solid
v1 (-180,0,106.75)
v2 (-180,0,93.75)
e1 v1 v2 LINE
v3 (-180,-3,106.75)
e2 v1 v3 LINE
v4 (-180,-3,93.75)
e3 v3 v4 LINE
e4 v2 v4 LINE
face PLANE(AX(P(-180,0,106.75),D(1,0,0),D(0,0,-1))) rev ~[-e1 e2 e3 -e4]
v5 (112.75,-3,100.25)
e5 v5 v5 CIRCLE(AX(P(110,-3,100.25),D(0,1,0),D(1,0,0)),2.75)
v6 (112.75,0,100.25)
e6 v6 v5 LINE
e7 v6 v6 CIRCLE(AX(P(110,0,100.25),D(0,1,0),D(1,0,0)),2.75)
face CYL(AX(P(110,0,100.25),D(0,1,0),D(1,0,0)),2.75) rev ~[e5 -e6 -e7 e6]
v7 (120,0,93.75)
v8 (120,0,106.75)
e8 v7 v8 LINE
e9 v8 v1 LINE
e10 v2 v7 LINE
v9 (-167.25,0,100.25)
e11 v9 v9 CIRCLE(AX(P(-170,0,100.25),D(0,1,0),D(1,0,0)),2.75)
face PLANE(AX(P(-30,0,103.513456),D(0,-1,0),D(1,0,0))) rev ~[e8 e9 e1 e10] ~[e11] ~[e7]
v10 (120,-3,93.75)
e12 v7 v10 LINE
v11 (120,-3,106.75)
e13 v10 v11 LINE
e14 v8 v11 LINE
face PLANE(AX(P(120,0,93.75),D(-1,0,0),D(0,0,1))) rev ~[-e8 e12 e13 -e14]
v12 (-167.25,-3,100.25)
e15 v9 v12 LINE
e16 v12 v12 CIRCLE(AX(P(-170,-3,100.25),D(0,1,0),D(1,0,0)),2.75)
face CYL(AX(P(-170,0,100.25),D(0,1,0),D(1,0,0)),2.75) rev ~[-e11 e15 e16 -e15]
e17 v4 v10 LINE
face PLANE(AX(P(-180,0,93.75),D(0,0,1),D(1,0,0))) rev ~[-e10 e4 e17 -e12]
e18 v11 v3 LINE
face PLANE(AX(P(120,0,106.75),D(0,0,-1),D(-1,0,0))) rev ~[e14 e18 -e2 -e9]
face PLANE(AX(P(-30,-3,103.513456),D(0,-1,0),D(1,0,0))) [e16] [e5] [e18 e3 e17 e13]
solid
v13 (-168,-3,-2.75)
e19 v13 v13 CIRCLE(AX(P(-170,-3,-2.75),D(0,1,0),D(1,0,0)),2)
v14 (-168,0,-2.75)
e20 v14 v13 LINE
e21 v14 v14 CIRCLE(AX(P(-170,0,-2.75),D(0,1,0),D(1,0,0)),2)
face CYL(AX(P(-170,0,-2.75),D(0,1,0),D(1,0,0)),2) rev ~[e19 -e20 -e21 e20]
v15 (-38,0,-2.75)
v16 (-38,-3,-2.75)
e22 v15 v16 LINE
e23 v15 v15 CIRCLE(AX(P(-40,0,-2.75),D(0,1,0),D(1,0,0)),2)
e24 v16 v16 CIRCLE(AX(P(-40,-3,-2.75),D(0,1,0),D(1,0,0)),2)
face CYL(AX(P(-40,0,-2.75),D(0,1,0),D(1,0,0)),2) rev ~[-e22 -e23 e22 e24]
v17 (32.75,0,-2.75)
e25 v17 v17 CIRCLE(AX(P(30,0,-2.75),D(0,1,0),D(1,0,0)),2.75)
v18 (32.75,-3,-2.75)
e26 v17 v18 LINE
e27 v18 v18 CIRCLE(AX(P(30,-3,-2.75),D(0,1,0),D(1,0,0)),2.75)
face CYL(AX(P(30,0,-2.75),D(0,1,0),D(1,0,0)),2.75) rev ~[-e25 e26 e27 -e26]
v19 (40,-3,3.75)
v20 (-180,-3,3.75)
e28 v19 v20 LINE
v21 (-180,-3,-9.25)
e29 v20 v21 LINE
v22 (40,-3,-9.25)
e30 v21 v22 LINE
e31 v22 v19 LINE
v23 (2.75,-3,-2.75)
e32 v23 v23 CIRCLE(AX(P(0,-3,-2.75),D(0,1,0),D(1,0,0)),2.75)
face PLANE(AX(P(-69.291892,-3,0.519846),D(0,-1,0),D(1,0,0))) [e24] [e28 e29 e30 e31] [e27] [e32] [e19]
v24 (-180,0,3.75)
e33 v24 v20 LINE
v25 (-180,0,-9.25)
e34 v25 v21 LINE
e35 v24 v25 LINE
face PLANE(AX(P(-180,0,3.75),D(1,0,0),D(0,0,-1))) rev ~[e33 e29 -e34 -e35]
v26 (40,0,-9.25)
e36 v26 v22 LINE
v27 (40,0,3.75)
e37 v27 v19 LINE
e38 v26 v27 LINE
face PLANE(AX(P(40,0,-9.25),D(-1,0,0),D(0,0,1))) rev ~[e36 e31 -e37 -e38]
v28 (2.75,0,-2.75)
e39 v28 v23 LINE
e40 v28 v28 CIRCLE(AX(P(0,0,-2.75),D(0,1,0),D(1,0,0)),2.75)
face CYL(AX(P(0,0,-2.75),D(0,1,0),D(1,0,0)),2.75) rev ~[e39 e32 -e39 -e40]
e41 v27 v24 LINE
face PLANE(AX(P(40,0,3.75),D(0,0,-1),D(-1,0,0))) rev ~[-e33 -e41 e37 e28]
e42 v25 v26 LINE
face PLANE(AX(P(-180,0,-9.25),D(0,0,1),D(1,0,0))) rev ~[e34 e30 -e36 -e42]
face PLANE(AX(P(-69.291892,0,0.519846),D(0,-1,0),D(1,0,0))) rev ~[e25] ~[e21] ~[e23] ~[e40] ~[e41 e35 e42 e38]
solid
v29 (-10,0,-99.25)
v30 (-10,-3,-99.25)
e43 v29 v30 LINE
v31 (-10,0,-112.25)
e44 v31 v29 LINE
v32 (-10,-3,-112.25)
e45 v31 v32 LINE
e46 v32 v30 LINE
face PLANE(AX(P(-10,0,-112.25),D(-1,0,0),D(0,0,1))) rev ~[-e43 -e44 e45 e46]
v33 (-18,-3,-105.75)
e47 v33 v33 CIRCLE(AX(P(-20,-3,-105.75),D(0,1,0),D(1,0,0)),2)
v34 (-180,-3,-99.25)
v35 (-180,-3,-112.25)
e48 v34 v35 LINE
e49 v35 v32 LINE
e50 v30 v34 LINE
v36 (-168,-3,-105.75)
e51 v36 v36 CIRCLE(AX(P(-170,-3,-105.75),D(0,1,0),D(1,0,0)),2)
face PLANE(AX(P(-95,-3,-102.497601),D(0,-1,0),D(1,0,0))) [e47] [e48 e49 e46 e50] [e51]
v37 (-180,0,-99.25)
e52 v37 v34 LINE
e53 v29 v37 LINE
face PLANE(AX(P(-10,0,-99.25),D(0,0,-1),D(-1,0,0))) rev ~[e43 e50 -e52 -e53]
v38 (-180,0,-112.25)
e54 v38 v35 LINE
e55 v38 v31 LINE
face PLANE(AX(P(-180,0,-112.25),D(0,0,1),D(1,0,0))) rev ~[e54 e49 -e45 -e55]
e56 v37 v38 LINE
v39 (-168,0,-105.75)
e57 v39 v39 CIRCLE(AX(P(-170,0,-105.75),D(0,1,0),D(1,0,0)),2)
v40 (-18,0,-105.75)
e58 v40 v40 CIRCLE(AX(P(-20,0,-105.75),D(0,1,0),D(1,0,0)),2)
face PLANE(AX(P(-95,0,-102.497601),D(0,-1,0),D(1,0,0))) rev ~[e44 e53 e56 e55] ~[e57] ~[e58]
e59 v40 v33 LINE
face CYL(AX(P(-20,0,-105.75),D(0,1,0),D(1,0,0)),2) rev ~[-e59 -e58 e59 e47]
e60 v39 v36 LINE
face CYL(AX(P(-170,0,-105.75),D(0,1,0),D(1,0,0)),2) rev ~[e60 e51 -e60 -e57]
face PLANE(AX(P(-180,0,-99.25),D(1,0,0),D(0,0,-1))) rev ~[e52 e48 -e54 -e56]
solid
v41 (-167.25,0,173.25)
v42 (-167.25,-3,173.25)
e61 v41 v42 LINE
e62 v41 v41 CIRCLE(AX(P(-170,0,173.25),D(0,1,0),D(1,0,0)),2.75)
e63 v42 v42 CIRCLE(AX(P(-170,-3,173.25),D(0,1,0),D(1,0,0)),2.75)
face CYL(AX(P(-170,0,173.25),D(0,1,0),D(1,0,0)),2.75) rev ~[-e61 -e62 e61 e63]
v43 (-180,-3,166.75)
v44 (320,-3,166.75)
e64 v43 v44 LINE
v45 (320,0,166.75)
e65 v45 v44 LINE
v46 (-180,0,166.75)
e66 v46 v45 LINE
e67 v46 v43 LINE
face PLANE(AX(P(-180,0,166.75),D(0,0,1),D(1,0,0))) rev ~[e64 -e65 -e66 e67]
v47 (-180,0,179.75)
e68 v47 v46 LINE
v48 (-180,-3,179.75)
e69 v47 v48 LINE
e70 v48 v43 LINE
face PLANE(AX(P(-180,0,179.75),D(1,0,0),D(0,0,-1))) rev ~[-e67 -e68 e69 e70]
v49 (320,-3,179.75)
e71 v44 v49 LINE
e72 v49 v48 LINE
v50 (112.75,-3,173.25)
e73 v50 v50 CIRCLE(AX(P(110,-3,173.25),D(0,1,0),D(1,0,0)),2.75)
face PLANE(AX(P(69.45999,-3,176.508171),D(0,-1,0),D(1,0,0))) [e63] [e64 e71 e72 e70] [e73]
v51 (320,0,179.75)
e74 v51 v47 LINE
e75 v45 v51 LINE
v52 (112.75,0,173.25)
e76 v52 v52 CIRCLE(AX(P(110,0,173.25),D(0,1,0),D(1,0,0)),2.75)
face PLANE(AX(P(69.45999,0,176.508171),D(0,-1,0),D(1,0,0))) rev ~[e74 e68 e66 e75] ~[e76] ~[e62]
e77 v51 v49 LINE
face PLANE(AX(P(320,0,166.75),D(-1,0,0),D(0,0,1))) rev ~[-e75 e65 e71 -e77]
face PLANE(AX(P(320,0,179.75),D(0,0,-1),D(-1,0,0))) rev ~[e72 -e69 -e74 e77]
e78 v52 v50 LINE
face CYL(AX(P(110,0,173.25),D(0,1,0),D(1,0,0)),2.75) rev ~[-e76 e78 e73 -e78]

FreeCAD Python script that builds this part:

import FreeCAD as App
import Part
import Sketcher

V = App.Vector

doc = App.newDocument("Part")
body = doc.addObject("PartDesign::Body", "Body")
body.AllowCompound = True

sketch1 = body.newObject("Sketcher::SketchObject", "Sketch")
sketch1.AttachmentSupport = (doc.getObject("XZ_Plane"), [""])
sketch1.MapMode = "FlatFace"
sketch1.addGeometry(Part.LineSegment(V(320, 179.8, 0), V(-180, 179.8, 0)), False)
sketch1.addGeometry(Part.LineSegment(V(-180, 179.8, 0), V(-180, 166.8, 0)), False)
sketch1.addGeometry(Part.LineSegment(V(-180, 166.8, 0), V(320, 166.8, 0)), False)
sketch1.addGeometry(Part.LineSegment(V(320, 166.8, 0), V(320, 179.8, 0)), False)
sketch1.addGeometry(Part.Circle(V(-170, 173.2, 0), V(0, 0, 1), 2.8), False)
sketch1.addGeometry(Part.Circle(V(110, 173.2, 0), V(0, 0, 1), 2.8), False)
sketch1.addGeometry(Part.LineSegment(V(120, 106.8, 0), V(-180, 106.8, 0)), False)
sketch1.addGeometry(Part.LineSegment(V(-180, 106.8, 0), V(-180, 93.8, 0)), False)
sketch1.addGeometry(Part.LineSegment(V(-180, 93.8, 0), V(120, 93.8, 0)), False)
sketch1.addGeometry(Part.LineSegment(V(120, 93.8, 0), V(120, 106.8, 0)), False)
sketch1.addGeometry(Part.Circle(V(-170, 100.2, 0), V(0, 0, 1), 2.8), False)
sketch1.addGeometry(Part.Circle(V(110, 100.2, 0), V(0, 0, 1), 2.8), False)
sketch1.addGeometry(Part.LineSegment(V(40, 3.8, 0), V(-180, 3.8, 0)), False)
sketch1.addGeometry(Part.LineSegment(V(-180, 3.8, 0), V(-180, -9.2, 0)), False)
sketch1.addGeometry(Part.LineSegment(V(-180, -9.2, 0), V(40, -9.2, 0)), False)
sketch1.addGeometry(Part.LineSegment(V(40, -9.2, 0), V(40, 3.8, 0)), False)
sketch1.addGeometry(Part.Circle(V(-170, -2.8, 0), V(0, 0, 1), 2), False)
sketch1.addGeometry(Part.Circle(V(-40, -2.8, 0), V(0, 0, 1), 2), False)
sketch1.addGeometry(Part.Circle(V(0, -2.8, 0), V(0, 0, 1), 2.8), False)
sketch1.addGeometry(Part.Circle(V(30, -2.8, 0), V(0, 0, 1), 2.8), False)
sketch1.addGeometry(Part.LineSegment(V(-10, -99.2, 0), V(-180, -99.2, 0)), False)
sketch1.addGeometry(Part.LineSegment(V(-180, -99.2, 0), V(-180, -112.2, 0)), False)
sketch1.addGeometry(Part.LineSegment(V(-180, -112.2, 0), V(-10, -112.2, 0)), False)
sketch1.addGeometry(Part.LineSegment(V(-10, -112.2, 0), V(-10, -99.2, 0)), False)
sketch1.addGeometry(Part.Circle(V(-170, -105.8, 0), V(0, 0, 1), 2), False)
sketch1.addGeometry(Part.Circle(V(-20, -105.8, 0), V(0, 0, 1), 2), False)
sketch1.addConstraint(Sketcher.Constraint("Coincident", 0, 2, 1, 1))
sketch1.addConstraint(Sketcher.Constraint("Coincident", 1, 2, 2, 1))
sketch1.addConstraint(Sketcher.Constraint("Coincident", 2, 2, 3, 1))
sketch1.addConstraint(Sketcher.Constraint("Coincident", 3, 2, 0, 1))
sketch1.addConstraint(Sketcher.Constraint("Coincident", 6, 2, 7, 1))
sketch1.addConstraint(Sketcher.Constraint("Coincident", 7, 2, 8, 1))
sketch1.addConstraint(Sketcher.Constraint("Coincident", 8, 2, 9, 1))
sketch1.addConstraint(Sketcher.Constraint("Coincident", 9, 2, 6, 1))
sketch1.addConstraint(Sketcher.Constraint("Coincident", 12, 2, 13, 1))
sketch1.addConstraint(Sketcher.Constraint("Coincident", 13, 2, 14, 1))
sketch1.addConstraint(Sketcher.Constraint("Coincident", 14, 2, 15, 1))
sketch1.addConstraint(Sketcher.Constraint("Coincident", 15, 2, 12, 1))
sketch1.addConstraint(Sketcher.Constraint("Coincident", 20, 2, 21, 1))
sketch1.addConstraint(Sketcher.Constraint("Coincident", 21, 2, 22, 1))
sketch1.addConstraint(Sketcher.Constraint("Coincident", 22, 2, 23, 1))
sketch1.addConstraint(Sketcher.Constraint("Coincident", 23, 2, 20, 1))
sketch1.addConstraint(Sketcher.Constraint("Horizontal", 0))
sketch1.addConstraint(Sketcher.Constraint("Vertical", 1))
sketch1.addConstraint(Sketcher.Constraint("Horizontal", 2))
sketch1.addConstraint(Sketcher.Constraint("Vertical", 3))
sketch1.addConstraint(Sketcher.Constraint("Horizontal", 6))
sketch1.addConstraint(Sketcher.Constraint("Vertical", 7))
sketch1.addConstraint(Sketcher.Constraint("Horizontal", 8))
sketch1.addConstraint(Sketcher.Constraint("Vertical", 9))
sketch1.addConstraint(Sketcher.Constraint("Horizontal", 12))
sketch1.addConstraint(Sketcher.Constraint("Vertical", 13))
sketch1.addConstraint(Sketcher.Constraint("Horizontal", 14))
sketch1.addConstraint(Sketcher.Constraint("Vertical", 15))
sketch1.addConstraint(Sketcher.Constraint("Horizontal", 20))
sketch1.addConstraint(Sketcher.Constraint("Vertical", 21))
sketch1.addConstraint(Sketcher.Constraint("Horizontal", 22))
sketch1.addConstraint(Sketcher.Constraint("Vertical", 23))
sketch1.addConstraint(Sketcher.Constraint("Equal", 4, 5))
sketch1.addConstraint(Sketcher.Constraint("Equal", 5, 10))
sketch1.addConstraint(Sketcher.Constraint("Equal", 10, 11))
sketch1.addConstraint(Sketcher.Constraint("Equal", 16, 17))
sketch1.addConstraint(Sketcher.Constraint("Equal", 11, 18))
sketch1.addConstraint(Sketcher.Constraint("Equal", 18, 19))
sketch1.addConstraint(Sketcher.Constraint("Equal", 17, 24))
sketch1.addConstraint(Sketcher.Constraint("Equal", 24, 25))
sketch1.addConstraint(Sketcher.Constraint("PointOnObject", 18, 3, -2))
sketch1.addConstraint(Sketcher.Constraint("Horizontal", 4, 3, 5, 3))
sketch1.addConstraint(Sketcher.Constraint("Horizontal", 10, 3, 11, 3))
sketch1.addConstraint(Sketcher.Constraint("Horizontal", 16, 3, 17, 3))
sketch1.addConstraint(Sketcher.Constraint("Horizontal", 17, 3, 18, 3))
sketch1.addConstraint(Sketcher.Constraint("Horizontal", 18, 3, 19, 3))
sketch1.addConstraint(Sketcher.Constraint("Horizontal", 24, 3, 25, 3))
sketch1.addConstraint(Sketcher.Constraint("Vertical", 4, 3, 10, 3))
sketch1.addConstraint(Sketcher.Constraint("Vertical", 5, 3, 11, 3))
sketch1.addConstraint(Sketcher.Constraint("Vertical", 10, 3, 16, 3))
sketch1.addConstraint(Sketcher.Constraint("Vertical", 16, 3, 24, 3))
sketch1.addConstraint(Sketcher.Constraint("Vertical", 1, 2, 6, 2))
sketch1.addConstraint(Sketcher.Constraint("Vertical", 7, 2, 12, 2))
sketch1.addConstraint(Sketcher.Constraint("Vertical", 13, 2, 20, 2))
sketch1.addConstraint(Sketcher.Constraint("Equal", 3, 7))
sketch1.addConstraint(Sketcher.Constraint("Equal", 9, 13))
sketch1.addConstraint(Sketcher.Constraint("Equal", 15, 21))
sketch1.addConstraint(Sketcher.Constraint("Diameter", 16, 4.0))
sketch1.addConstraint(Sketcher.Constraint("Diameter", 4, 5.5))
sketch1.addConstraint(Sketcher.Constraint("DistanceX", 0, 2, 0, 1, 500.0))
sketch1.addConstraint(Sketcher.Constraint("DistanceX", 6, 2, 6, 1, 300.0))
sketch1.addConstraint(Sketcher.Constraint("DistanceX", 12, 2, 12, 1, 220.0))
sketch1.addConstraint(Sketcher.Constraint("DistanceX", 20, 2, 20, 1, 170.0))
sketch1.addConstraint(Sketcher.Constraint("DistanceY", 1, 2, 1, 1, 13.0))
sketch1.addConstraint(Sketcher.Constraint("DistanceX", 4, 3, -1, 1, 170.0))
sketch1.addConstraint(Sketcher.Constraint("DistanceX", -1, 1, 5, 3, 110.0))
sketch1.addConstraint(Sketcher.Constraint("DistanceX", 17, 3, -1, 1, 40.0))
sketch1.addConstraint(Sketcher.Constraint("DistanceX", -1, 1, 19, 3, 30.0))
sketch1.addConstraint(Sketcher.Constraint("DistanceX", 25, 3, -1, 1, 20.0))
sketch1.addConstraint(Sketcher.Constraint("DistanceX", 0, 2, -1, 1, 180.0))
sketch1.addConstraint(Sketcher.Constraint("DistanceY", 10, 3, 4, 3, 73.0))
sketch1.addConstraint(Sketcher.Constraint("DistanceY", 16, 3, 10, 3, 103.0))
sketch1.addConstraint(Sketcher.Constraint("DistanceY", 24, 3, 16, 3, 103.0))
sketch1.addConstraint(Sketcher.Constraint("DistanceY", 6, 2, 1, 2, 60.0))
sketch1.addConstraint(Sketcher.Constraint("DistanceY", 12, 2, 7, 2, 90.0))
sketch1.addConstraint(Sketcher.Constraint("DistanceY", 20, 2, 13, 2, 90.0))
sketch1.addConstraint(Sketcher.Constraint("DistanceY", 4, 3, 0, 2, 6.5))
sketch1.addConstraint(Sketcher.Constraint("DistanceY", -1, 1, 4, 3, 173.25))
pad1 = body.newObject("PartDesign::Pad", "Pad")
pad1.Profile = sketch1
pad1.Length = 3

doc.recompute()
